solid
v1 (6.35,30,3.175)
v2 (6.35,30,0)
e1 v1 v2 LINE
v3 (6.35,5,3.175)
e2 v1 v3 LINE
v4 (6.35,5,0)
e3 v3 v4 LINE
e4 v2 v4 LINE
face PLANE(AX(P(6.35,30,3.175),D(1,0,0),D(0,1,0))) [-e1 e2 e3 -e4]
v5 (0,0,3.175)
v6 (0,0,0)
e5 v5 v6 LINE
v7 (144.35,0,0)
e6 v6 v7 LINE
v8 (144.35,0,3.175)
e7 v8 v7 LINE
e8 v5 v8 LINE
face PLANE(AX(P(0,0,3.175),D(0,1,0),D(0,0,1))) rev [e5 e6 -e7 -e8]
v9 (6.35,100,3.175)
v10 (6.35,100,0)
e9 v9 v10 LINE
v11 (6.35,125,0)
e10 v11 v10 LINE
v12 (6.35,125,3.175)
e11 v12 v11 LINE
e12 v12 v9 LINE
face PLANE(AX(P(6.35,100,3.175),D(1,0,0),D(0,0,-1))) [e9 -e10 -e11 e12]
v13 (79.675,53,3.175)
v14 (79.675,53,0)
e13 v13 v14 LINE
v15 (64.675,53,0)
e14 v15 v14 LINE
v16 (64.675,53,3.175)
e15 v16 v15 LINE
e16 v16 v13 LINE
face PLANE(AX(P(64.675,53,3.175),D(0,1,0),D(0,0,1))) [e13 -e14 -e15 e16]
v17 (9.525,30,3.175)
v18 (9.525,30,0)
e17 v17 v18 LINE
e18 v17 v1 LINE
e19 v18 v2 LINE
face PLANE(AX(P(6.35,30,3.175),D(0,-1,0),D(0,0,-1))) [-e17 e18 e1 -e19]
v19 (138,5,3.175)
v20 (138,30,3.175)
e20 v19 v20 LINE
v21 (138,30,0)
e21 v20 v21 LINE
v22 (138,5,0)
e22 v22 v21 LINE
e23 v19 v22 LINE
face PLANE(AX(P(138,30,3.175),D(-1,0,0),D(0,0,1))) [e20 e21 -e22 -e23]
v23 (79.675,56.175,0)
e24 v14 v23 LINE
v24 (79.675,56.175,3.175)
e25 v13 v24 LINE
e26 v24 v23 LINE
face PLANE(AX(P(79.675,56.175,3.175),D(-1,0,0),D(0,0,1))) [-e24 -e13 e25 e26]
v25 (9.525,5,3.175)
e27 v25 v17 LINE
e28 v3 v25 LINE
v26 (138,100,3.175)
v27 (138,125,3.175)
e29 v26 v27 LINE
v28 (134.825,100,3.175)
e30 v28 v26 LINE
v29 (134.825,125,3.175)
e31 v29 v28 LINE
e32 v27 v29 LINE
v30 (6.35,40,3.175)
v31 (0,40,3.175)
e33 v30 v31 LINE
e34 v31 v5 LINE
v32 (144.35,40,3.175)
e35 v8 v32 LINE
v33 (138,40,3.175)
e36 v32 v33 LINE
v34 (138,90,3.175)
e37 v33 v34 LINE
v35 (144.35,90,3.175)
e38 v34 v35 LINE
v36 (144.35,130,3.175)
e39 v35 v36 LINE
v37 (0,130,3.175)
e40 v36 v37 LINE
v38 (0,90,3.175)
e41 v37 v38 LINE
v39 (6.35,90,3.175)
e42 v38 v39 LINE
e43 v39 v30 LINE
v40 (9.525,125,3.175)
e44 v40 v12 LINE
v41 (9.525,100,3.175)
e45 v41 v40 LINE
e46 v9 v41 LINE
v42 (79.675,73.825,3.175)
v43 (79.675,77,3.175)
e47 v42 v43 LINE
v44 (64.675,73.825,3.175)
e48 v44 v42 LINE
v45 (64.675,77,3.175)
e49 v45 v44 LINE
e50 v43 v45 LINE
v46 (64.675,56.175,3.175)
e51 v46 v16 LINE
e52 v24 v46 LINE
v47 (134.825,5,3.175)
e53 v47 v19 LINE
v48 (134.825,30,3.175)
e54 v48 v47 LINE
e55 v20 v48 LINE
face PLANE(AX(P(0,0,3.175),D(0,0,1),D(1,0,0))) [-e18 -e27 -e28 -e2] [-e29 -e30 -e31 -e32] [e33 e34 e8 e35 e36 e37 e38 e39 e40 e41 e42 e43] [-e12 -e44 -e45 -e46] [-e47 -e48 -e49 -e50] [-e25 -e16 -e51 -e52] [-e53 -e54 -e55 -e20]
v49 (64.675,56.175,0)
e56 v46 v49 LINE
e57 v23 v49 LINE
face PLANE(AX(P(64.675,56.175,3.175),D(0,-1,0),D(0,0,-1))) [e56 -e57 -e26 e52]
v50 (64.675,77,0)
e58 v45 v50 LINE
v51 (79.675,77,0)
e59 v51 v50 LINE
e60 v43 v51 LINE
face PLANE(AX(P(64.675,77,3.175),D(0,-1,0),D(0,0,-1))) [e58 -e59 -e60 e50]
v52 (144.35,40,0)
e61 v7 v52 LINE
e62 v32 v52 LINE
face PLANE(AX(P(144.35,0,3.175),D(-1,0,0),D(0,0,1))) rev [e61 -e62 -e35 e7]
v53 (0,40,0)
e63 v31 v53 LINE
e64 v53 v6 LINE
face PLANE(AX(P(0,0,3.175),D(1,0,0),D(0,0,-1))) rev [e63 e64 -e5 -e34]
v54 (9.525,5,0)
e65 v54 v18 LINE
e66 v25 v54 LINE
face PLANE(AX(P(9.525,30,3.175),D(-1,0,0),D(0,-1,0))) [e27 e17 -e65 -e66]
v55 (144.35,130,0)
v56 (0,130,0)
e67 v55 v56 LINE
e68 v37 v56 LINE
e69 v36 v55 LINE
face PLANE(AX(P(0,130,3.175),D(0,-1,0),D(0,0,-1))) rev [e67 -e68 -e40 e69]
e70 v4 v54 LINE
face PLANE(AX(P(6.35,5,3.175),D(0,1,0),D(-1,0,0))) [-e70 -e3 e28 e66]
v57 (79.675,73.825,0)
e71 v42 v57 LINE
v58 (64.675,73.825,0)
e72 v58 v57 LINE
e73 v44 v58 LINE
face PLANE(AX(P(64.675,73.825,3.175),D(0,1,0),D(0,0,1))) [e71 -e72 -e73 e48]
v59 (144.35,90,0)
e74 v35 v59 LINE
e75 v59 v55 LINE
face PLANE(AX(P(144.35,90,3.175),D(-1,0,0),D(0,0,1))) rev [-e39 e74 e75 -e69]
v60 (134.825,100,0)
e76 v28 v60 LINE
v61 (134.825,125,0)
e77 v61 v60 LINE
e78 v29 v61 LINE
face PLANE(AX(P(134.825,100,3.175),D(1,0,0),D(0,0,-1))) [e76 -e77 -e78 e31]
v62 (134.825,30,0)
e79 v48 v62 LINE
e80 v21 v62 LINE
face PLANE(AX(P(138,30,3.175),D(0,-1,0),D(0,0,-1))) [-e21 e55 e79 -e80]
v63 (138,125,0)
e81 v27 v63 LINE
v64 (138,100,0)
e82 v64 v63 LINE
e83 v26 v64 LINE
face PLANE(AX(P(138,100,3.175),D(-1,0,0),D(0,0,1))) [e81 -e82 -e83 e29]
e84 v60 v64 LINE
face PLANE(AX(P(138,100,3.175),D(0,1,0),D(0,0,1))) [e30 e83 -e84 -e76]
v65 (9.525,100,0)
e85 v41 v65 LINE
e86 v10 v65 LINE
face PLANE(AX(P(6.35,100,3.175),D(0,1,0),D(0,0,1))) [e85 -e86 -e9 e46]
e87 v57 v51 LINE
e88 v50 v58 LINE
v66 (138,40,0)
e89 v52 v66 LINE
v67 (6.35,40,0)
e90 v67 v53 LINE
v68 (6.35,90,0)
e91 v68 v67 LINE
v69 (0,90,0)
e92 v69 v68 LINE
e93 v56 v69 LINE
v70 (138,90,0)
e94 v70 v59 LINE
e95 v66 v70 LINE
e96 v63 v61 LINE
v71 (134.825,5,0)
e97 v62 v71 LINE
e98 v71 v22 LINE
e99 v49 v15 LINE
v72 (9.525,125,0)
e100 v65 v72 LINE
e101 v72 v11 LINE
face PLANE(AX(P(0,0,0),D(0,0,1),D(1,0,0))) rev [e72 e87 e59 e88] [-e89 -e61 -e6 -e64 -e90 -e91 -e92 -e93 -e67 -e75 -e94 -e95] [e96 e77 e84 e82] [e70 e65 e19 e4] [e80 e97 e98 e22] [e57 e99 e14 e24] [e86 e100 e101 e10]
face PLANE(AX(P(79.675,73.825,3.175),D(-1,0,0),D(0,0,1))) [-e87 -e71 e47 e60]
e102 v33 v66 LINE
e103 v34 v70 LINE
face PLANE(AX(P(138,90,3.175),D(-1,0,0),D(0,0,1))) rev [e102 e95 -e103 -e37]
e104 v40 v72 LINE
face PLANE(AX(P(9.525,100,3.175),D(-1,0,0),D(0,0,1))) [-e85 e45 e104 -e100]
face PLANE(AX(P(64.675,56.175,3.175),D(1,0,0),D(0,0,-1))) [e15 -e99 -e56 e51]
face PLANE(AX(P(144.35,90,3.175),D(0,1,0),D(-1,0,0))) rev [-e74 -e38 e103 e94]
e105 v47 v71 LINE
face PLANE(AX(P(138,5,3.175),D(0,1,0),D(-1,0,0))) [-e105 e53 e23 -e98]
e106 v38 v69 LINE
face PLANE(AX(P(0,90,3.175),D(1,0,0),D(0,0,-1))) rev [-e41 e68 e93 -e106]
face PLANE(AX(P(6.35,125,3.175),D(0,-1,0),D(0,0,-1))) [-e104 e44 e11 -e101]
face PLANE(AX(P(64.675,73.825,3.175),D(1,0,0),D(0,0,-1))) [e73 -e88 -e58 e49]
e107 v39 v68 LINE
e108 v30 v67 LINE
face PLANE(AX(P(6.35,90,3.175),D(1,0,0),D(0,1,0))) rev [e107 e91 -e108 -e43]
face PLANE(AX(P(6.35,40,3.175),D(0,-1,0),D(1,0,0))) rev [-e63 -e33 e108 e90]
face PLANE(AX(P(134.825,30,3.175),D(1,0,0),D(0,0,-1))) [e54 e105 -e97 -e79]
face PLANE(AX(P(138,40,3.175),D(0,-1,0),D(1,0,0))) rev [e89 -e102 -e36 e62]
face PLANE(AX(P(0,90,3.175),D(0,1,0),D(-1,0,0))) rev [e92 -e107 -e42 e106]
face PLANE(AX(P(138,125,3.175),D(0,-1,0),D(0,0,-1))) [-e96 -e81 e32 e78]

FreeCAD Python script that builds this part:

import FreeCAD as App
import Part
import Sketcher
from FreeCAD import Vector
Q = App.Units.Quantity


def add_polygon(sketch, points):
    """Adds a closed chain of lines whose ends are joined by coincident constraints."""
    first, n = sketch.GeometryCount, len(points)
    for a, b in zip(points, points[1:] + points[:1]):
        sketch.addGeometry(Part.LineSegment(App.Vector(*a, 0), App.Vector(*b, 0)), False)
    for i in range(n):
        sketch.addConstraint(Sketcher.Constraint("Coincident", first + i, 2, first + (i + 1) % n, 1))

doc = App.newDocument("Part")
params = doc.addObject("Spreadsheet::Sheet", "Params")
for row, (alias, value) in enumerate([
    ("sketch1_width", "15 mm"),
    ("sketch1_height", "50 mm"),
    ("sketch1_height2", "40 mm"),
    ("sketch1_height3", "25 mm"),
    ("sketch1_width2", "6.35 mm"),
    ("pad1_length", "3.175 mm"),
], start=1):
    params.set(f"A{row}", alias)
    params.set(f"B{row}", "=" + value)
    params.setAlias(f"B{row}", alias)

body = doc.addObject("PartDesign::Body", "Body")

# Sketch on XY plane
sketch1 = body.newObject("Sketcher::SketchObject", "Sketch")
sketch1.AttachmentSupport = (doc.getObject("XY_Plane"), [""])
sketch1.MapMode = "FlatFace"
add_polygon(sketch1, [(0, 90), (6.35, 90), (6.35, 40), (0, 40), (0, 0), (144.35, 0), (144.35, 40), (138, 40), (138, 90), (144.35, 90), (144.35, 130), (0, 130)])  # lines 0-11
add_polygon(sketch1, [(9.525, 5), (6.35, 5), (6.35, 30), (9.525, 30)])  # lines 12-15
add_polygon(sketch1, [(138, 5), (134.825, 5), (134.825, 30), (138, 30)])  # lines 16-19
add_polygon(sketch1, [(79.675, 53), (64.675, 53), (64.675, 56.175), (79.675, 56.175)])  # lines 20-23
add_polygon(sketch1, [(9.525, 100), (6.35, 100), (6.35, 125), (9.525, 125)])  # lines 24-27
add_polygon(sketch1, [(79.675, 73.825), (64.675, 73.825), (64.675, 77), (79.675, 77)])  # lines 28-31
add_polygon(sketch1, [(138, 100), (134.825, 100), (134.825, 125), (138, 125)])  # lines 32-35
sketch1.addConstraint(Sketcher.Constraint("Horizontal", 0))
sketch1.addConstraint(Sketcher.Constraint("Vertical", 1))
sketch1.addConstraint(Sketcher.Constraint("Horizontal", 2))
sketch1.addConstraint(Sketcher.Constraint("Vertical", 3))
sketch1.addConstraint(Sketcher.Constraint("Horizontal", 4))
sketch1.addConstraint(Sketcher.Constraint("Vertical", 5))
sketch1.addConstraint(Sketcher.Constraint("Horizontal", 6))
sketch1.addConstraint(Sketcher.Constraint("Vertical", 7))
sketch1.addConstraint(Sketcher.Constraint("Horizontal", 8))
sketch1.addConstraint(Sketcher.Constraint("Vertical", 9))
sketch1.addConstraint(Sketcher.Constraint("Horizontal", 10))
sketch1.addConstraint(Sketcher.Constraint("Vertical", 11))
sketch1.addConstraint(Sketcher.Constraint("Horizontal", 12))
sketch1.addConstraint(Sketcher.Constraint("Vertical", 13))
sketch1.addConstraint(Sketcher.Constraint("Horizontal", 14))
sketch1.addConstraint(Sketcher.Constraint("Vertical", 15))
sketch1.addConstraint(Sketcher.Constraint("Horizontal", 16))
sketch1.addConstraint(Sketcher.Constraint("Vertical", 17))
sketch1.addConstraint(Sketcher.Constraint("Horizontal", 18))
sketch1.addConstraint(Sketcher.Constraint("Vertical", 19))
sketch1.addConstraint(Sketcher.Constraint("Horizontal", 20))
sketch1.addConstraint(Sketcher.Constraint("Vertical", 21))
sketch1.addConstraint(Sketcher.Constraint("Horizontal", 22))
sketch1.addConstraint(Sketcher.Constraint("Vertical", 23))
sketch1.addConstraint(Sketcher.Constraint("Horizontal", 24))
sketch1.addConstraint(Sketcher.Constraint("Vertical", 25))
sketch1.addConstraint(Sketcher.Constraint("Horizontal", 26))
sketch1.addConstraint(Sketcher.Constraint("Vertical", 27))
sketch1.addConstraint(Sketcher.Constraint("Horizontal", 28))
sketch1.addConstraint(Sketcher.Constraint("Vertical", 29))
sketch1.addConstraint(Sketcher.Constraint("Horizontal", 30))
sketch1.addConstraint(Sketcher.Constraint("Vertical", 31))
sketch1.addConstraint(Sketcher.Constraint("Horizontal", 32))
sketch1.addConstraint(Sketcher.Constraint("Vertical", 33))
sketch1.addConstraint(Sketcher.Constraint("Horizontal", 34))
sketch1.addConstraint(Sketcher.Constraint("Vertical", 35))
sketch1.addConstraint(Sketcher.Constraint("Coincident", 3, 2, -1, 1))
sketch1.addConstraint(Sketcher.Constraint("PointOnObject", 10, 2, -2))
sketch1.addConstraint(Sketcher.Constraint("Horizontal", 2, 2, 5, 2))
sketch1.addConstraint(Sketcher.Constraint("Horizontal", 0, 2, 7, 2))
sketch1.addConstraint(Sketcher.Constraint("Horizontal", 15, 2, 16, 2))
sketch1.addConstraint(Sketcher.Constraint("Horizontal", 14, 2, 17, 2))
sketch1.addConstraint(Sketcher.Constraint("Horizontal", 27, 2, 32, 2))
sketch1.addConstraint(Sketcher.Constraint("Horizontal", 26, 2, 33, 2))
sketch1.addConstraint(Sketcher.Constraint("Vertical", 5, 2, 8, 2))
sketch1.addConstraint(Sketcher.Constraint("Vertical", 1, 2, 12, 2))
sketch1.addConstraint(Sketcher.Constraint("Vertical", 7, 2, 18, 2))
sketch1.addConstraint(Sketcher.Constraint("Vertical", 13, 2, 24, 2))
sketch1.addConstraint(Sketcher.Constraint("Vertical", 15, 2, 26, 2))
sketch1.addConstraint(Sketcher.Constraint("Vertical", 21, 2, 28, 2))
sketch1.addConstraint(Sketcher.Constraint("Vertical", 23, 2, 30, 2))
sketch1.addConstraint(Sketcher.Constraint("Vertical", 17, 2, 32, 2))
sketch1.addConstraint(Sketcher.Constraint("Vertical", 19, 2, 34, 2))
sketch1.addConstraint(Sketcher.Constraint("Equal", 2, 6))
sketch1.addConstraint(Sketcher.Constraint("Equal", 14, 16))
sketch1.addConstraint(Sketcher.Constraint("Equal", 5, 9))
sketch1.addConstraint(Sketcher.Constraint("Equal", 34, 21))
sketch1.addConstraint(Sketcher.Constraint("Equal", 19, 25))
sketch1.addConstraint(Sketcher.Constraint("Equal", 23, 29))
sketch1.addConstraint(Sketcher.Constraint("DistanceX", 20, 2, 20, 1, Q("15 mm")))
sketch1.addConstraint(Sketcher.Constraint("DistanceY", 1, 2, 1, 1, Q("50 mm")))
sketch1.addConstraint(Sketcher.Constraint("DistanceY", 3, 2, 3, 1, Q("40 mm")))
sketch1.addConstraint(Sketcher.Constraint("DistanceY", 13, 1, 13, 2, Q("25 mm")))
sketch1.addConstraint(Sketcher.Constraint("DistanceX", -1, 1, 6, 2, Q("138 mm")))
sketch1.addConstraint(Sketcher.Constraint("DistanceY", -1, 1, 12, 2, Q("5 mm")))
sketch1.addConstraint(Sketcher.Constraint("DistanceY", -1, 1, 20, 2, Q("53 mm")))
sketch1.addConstraint(Sketcher.Constraint("DistanceY", -1, 1, 24, 2, Q("100 mm")))
sketch1.addConstraint(Sketcher.Constraint("DistanceY", -1, 1, 29, 2, Q("77 mm")))
sketch1.addConstraint(Sketcher.Constraint("DistanceX", 0, 1, 0, 2, Q("6.35 mm")))
sketch1.addConstraint(Sketcher.Constraint("DistanceX", 12, 2, 12, 1, Q("3.175 mm")))
sketch1.addConstraint(Sketcher.Constraint("DistanceX", 14, 2, 20, 2, Q("55.15 mm")))
sketch1.setExpression("Constraints[95]", "Params.sketch1_width")
sketch1.setExpression("Constraints[96]", "Params.sketch1_height")
sketch1.setExpression("Constraints[97]", "Params.sketch1_height2")
sketch1.setExpression("Constraints[98]", "Params.sketch1_height3")
sketch1.setExpression("Constraints[104]", "Params.sketch1_width2")
pad1 = body.newObject("PartDesign::Pad", "Pad")
pad1.Profile = sketch1
pad1.setExpression("Length", "Params.pad1_length")

doc.recompute()
